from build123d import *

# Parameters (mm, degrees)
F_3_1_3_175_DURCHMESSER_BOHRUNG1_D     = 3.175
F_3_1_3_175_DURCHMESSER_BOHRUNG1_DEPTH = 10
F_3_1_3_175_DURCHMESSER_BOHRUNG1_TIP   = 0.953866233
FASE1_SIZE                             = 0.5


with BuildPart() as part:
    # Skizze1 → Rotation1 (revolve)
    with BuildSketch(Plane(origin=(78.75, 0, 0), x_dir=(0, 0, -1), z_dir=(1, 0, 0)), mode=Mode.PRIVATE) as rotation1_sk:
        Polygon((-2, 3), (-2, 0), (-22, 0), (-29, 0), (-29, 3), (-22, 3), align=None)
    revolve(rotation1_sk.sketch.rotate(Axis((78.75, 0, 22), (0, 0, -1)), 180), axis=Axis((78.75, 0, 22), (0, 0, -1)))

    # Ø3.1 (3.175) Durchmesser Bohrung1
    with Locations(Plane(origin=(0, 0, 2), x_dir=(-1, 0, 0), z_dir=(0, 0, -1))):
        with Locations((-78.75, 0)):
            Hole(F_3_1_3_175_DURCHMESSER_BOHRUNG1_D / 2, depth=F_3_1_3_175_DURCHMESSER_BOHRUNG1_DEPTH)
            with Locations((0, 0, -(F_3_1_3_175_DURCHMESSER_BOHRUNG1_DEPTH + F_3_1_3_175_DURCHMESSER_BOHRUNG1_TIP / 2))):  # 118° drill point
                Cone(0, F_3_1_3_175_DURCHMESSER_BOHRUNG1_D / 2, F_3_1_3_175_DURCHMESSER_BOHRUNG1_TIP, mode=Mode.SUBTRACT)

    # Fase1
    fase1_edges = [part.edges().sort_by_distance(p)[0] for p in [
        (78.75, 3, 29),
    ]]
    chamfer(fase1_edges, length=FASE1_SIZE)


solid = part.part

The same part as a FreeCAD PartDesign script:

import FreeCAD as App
import Part
import Sketcher

V = App.Vector
Q = App.Units.Quantity


def edges_at(feature, points):
    """Names of the edges that pass closest to the given points."""
    edges = feature.Shape.Edges
    near = lambda p: min(range(len(edges)), key=lambda i: edges[i].distToShape(Part.Vertex(*p))[0])
    return sorted({f"Edge{near(p) + 1}" for p in points})

doc = App.newDocument("Part")
body = doc.addObject("PartDesign::Body", "Body")

# Sketch on YZ plane
sketch1 = body.newObject("Sketcher::SketchObject", "Sketch")
sketch1.AttachmentSupport = (doc.getObject("YZ_Plane"), [""])
sketch1.MapMode = "FlatFace"
sketch1.AttachmentOffset = App.Placement(V(0, 0, 78.75), App.Rotation())
sketch1.addGeometry([
    Part.LineSegment(V(0, 2, 0), V(3, 2, 0)),
    Part.LineSegment(V(3, 2, 0), V(3, 29, 0)),
    Part.LineSegment(V(3, 29, 0), V(0, 29, 0)),
    Part.LineSegment(V(0, 29, 0), V(0, 2, 0)),
], False)
sketch1.addConstraint([
    Sketcher.Constraint("Coincident", 0, 2, 1, 1),
    Sketcher.Constraint("Coincident", 1, 2, 2, 1),
    Sketcher.Constraint("Coincident", 2, 2, 3, 1),
    Sketcher.Constraint("Coincident", 3, 2, 0, 1),
    Sketcher.Constraint("Horizontal", 0),
    Sketcher.Constraint("Vertical", 1),
    Sketcher.Constraint("Horizontal", 2),
    Sketcher.Constraint("Vertical", 3),
    Sketcher.Constraint("PointOnObject", 2, 2, -2),
    Sketcher.Constraint("DistanceX", 0, 1, 0, 2, Q("3 mm")),
    Sketcher.Constraint("DistanceY", 1, 1, 1, 2, Q("27 mm")),
    Sketcher.Constraint("DistanceY", -1, 1, 0, 2, Q("2 mm")),
])
revolution = body.newObject("PartDesign::Revolution", "Revolution")
revolution.Profile = sketch1
revolution.ReferenceAxis = (sketch1, ["V_Axis"])
revolution.Angle = 360

# Sketch on XY plane
sketch2 = body.newObject("Sketcher::SketchObject", "Sketch001")
sketch2.AttachmentSupport = (doc.getObject("XY_Plane"), [""])
sketch2.MapMode = "FlatFace"
sketch2.AttachmentOffset = App.Placement(V(0, 0, 2), App.Rotation())
sketch2.addGeometry(Part.Circle(V(78.8, 0, 0), V(0, 0, 1), 1.6), False)
sketch2.addConstraint([
    Sketcher.Constraint("PointOnObject", 0, 3, -1),
    Sketcher.Constraint("Diameter", 0, Q("3.175 mm")),
    Sketcher.Constraint("DistanceX", -1, 1, 0, 3, Q("78.75 mm")),
])
doc.recompute()
hole = body.newObject("PartDesign::Hole", "Hole")
hole.Profile = sketch2
hole.ThreadType = "None"
hole.Diameter = 3.175
hole.DepthType = "Dimension"
hole.Depth = 10
hole.DrillPoint = "Angled"
hole.DrillPointAngle = 118
hole.Reversed = True
doc.recompute()

chamfer = body.newObject("PartDesign::Chamfer", "Chamfer")
chamfer.Base = (hole, edges_at(hole, [(78.75, 3, 29)]))
chamfer.Size = 0.5

doc.recompute()
